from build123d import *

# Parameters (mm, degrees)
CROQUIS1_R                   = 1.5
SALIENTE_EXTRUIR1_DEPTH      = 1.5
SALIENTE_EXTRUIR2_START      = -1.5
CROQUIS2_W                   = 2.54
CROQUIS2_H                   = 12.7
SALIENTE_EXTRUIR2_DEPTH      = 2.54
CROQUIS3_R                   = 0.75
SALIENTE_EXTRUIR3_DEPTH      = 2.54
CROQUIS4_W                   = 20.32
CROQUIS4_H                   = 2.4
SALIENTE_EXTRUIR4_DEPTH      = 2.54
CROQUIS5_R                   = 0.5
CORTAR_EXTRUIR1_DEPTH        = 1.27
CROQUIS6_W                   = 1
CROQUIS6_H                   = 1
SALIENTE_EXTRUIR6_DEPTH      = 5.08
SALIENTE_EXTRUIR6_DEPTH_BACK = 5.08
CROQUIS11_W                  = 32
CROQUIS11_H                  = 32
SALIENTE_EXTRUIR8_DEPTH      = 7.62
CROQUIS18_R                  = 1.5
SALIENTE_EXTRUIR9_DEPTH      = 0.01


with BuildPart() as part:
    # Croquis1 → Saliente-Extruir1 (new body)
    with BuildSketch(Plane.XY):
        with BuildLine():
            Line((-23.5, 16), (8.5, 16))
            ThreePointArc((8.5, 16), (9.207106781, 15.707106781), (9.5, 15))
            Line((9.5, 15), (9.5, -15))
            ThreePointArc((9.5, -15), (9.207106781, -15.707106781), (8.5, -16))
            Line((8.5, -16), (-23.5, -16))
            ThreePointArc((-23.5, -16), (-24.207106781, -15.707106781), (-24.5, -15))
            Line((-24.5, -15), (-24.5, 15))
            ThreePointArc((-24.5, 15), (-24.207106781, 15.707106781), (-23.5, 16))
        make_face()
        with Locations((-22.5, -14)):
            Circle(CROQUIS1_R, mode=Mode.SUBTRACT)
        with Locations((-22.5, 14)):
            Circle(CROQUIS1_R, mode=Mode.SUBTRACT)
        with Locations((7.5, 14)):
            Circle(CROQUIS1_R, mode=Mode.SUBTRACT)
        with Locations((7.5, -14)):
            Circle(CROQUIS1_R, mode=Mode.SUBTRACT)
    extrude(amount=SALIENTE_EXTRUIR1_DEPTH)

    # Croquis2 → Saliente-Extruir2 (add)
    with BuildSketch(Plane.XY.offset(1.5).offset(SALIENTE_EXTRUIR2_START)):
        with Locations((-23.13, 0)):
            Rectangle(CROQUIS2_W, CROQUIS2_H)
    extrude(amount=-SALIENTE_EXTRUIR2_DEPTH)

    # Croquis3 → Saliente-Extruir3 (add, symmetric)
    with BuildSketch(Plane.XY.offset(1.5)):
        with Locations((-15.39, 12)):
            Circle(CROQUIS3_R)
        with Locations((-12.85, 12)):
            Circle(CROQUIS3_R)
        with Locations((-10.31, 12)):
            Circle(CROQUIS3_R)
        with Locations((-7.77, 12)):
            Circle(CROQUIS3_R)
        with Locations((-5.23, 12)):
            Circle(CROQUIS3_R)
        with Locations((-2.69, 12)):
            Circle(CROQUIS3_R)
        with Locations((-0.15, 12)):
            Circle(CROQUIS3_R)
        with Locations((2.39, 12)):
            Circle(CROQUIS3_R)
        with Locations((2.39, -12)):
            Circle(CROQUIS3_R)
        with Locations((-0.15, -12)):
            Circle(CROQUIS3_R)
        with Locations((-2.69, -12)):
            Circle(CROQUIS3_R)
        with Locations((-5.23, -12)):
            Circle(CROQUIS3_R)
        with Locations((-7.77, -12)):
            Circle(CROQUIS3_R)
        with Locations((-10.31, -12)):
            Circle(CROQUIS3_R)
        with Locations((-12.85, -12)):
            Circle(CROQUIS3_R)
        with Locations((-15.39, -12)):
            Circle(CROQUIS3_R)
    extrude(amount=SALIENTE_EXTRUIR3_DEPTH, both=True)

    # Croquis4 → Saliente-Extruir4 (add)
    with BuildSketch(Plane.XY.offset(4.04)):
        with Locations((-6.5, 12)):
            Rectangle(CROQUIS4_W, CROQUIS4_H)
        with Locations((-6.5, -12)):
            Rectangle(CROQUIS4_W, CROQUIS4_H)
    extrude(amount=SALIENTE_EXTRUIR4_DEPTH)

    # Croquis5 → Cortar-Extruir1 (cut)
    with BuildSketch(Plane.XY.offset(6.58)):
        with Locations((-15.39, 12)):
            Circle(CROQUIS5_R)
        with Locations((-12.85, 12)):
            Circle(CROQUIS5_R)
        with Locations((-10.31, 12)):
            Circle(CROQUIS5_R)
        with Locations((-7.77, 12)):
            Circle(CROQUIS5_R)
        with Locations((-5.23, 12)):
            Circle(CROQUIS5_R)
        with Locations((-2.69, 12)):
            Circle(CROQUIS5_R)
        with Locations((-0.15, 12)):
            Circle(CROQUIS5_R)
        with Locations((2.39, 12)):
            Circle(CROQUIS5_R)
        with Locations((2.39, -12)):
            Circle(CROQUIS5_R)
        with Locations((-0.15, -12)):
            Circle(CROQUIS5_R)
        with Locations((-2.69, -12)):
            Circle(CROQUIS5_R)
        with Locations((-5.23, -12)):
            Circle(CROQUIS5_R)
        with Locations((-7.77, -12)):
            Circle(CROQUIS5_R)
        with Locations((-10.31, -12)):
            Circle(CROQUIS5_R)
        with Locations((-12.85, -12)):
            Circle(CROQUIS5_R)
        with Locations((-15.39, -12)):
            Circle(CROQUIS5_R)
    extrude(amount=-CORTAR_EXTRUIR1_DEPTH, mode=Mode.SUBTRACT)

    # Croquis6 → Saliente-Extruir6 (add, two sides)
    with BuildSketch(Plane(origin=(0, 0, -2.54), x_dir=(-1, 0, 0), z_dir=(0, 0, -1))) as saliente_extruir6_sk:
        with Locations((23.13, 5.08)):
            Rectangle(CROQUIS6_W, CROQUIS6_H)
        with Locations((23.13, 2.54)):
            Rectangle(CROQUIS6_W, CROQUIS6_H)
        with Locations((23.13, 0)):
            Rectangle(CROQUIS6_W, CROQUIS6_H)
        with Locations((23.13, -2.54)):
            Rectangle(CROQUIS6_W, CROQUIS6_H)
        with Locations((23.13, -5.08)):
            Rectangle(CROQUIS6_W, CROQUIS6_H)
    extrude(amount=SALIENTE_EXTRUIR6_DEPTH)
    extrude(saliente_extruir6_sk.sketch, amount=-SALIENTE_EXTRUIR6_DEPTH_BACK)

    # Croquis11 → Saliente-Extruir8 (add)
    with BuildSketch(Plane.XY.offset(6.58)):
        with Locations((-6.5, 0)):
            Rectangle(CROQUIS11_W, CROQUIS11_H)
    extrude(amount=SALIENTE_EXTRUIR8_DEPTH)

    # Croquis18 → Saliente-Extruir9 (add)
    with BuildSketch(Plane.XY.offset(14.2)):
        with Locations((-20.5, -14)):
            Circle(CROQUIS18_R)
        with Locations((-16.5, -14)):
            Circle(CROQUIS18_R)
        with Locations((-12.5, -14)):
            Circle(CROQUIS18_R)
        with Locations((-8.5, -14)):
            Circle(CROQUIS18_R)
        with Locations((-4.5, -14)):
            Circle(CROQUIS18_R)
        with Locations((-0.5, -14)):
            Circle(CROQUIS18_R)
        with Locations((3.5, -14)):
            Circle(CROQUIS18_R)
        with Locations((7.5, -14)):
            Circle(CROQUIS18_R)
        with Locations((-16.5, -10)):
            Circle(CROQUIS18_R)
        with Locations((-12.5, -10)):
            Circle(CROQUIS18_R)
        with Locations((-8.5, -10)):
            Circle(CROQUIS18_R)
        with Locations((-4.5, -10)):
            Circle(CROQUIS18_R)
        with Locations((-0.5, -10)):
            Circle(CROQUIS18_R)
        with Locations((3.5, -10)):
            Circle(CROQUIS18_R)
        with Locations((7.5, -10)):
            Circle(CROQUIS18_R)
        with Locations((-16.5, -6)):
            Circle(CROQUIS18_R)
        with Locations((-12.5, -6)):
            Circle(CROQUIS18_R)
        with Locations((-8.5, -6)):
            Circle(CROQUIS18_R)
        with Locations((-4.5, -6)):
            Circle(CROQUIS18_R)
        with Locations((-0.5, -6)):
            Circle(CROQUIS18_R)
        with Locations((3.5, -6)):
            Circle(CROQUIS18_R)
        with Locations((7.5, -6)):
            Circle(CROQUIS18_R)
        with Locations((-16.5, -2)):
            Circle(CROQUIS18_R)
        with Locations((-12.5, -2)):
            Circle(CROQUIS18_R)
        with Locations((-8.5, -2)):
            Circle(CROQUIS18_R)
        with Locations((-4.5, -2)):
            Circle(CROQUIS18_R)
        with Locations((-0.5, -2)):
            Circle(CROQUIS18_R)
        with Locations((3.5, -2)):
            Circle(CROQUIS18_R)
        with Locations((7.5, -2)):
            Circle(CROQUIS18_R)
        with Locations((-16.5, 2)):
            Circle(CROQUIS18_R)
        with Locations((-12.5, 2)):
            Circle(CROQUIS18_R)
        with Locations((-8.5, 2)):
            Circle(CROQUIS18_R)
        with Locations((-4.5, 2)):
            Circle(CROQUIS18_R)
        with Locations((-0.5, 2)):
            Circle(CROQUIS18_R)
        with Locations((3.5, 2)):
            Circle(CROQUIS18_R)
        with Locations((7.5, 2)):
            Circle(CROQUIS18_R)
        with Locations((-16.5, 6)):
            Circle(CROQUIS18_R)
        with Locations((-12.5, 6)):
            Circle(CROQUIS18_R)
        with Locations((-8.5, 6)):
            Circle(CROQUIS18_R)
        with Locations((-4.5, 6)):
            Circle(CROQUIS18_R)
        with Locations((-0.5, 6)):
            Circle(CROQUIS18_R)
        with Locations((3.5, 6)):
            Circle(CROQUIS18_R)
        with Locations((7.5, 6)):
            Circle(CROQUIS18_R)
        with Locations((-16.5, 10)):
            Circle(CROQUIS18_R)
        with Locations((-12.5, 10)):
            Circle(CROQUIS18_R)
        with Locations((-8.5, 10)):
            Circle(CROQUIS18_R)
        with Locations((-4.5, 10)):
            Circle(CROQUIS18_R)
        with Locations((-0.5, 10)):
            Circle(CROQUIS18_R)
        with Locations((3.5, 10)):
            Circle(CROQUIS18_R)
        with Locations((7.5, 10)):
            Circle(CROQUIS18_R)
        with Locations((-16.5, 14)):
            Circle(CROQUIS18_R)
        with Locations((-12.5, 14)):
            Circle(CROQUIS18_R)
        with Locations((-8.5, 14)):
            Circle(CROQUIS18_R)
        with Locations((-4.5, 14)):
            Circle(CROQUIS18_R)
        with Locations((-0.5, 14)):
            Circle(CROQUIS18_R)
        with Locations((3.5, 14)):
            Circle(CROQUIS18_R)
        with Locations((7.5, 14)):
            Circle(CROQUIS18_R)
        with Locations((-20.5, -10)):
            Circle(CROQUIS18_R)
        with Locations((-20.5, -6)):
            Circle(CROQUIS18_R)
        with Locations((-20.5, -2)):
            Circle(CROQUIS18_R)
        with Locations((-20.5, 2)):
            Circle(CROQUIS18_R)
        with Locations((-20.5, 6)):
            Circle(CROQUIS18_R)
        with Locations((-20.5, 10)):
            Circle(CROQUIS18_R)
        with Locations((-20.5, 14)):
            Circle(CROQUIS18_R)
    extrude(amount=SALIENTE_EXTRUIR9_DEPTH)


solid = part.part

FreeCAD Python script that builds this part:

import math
import FreeCAD as App
import Part
import Sketcher

V = App.Vector
Q = App.Units.Quantity

doc = App.newDocument("Part")
body = doc.addObject("PartDesign::Body", "Body")

# Sketch on XY plane
sketch1 = body.newObject("Sketcher::SketchObject", "Sketch")
sketch1.AttachmentSupport = (doc.getObject("XY_Plane"), [""])
sketch1.MapMode = "FlatFace"
sketch1.addGeometry([
    Part.LineSegment(V(8.5, 16, 0), V(-23.5, 16, 0)),  # 0
    Part.ArcOfCircle(Part.Circle(V(-23.5, 15, 0), V(0, 0, 1), 1), math.radians(90), math.radians(180)),  # 1
    Part.LineSegment(V(-24.5, 15, 0), V(-24.5, -15, 0)),  # 2
    Part.ArcOfCircle(Part.Circle(V(-23.5, -15, 0), V(0, 0, 1), 1), math.radians(-180), math.radians(-90)),  # 3
    Part.LineSegment(V(-23.5, -16, 0), V(8.5, -16, 0)),  # 4
    Part.ArcOfCircle(Part.Circle(V(8.5, -15, 0), V(0, 0, 1), 1), math.radians(-90), math.radians(0)),  # 5
    Part.LineSegment(V(9.5, -15, 0), V(9.5, 15, 0)),  # 6
    Part.ArcOfCircle(Part.Circle(V(8.5, 15, 0), V(0, 0, 1), 1), math.radians(0), math.radians(90)),  # 7
    Part.Circle(V(7.5, -14, 0), V(0, 0, 1), 1.5),  # 8
    Part.Circle(V(-22.5, -14, 0), V(0, 0, 1), 1.5),  # 9
    Part.Circle(V(7.5, 14, 0), V(0, 0, 1), 1.5),  # 10
    Part.Circle(V(-22.5, 14, 0), V(0, 0, 1), 1.5),  # 11
], False)
sketch1.addConstraint([
    Sketcher.Constraint("Tangent", 0, 2, 1, 1),
    Sketcher.Constraint("Tangent", 1, 2, 2, 1),
    Sketcher.Constraint("Tangent", 2, 2, 3, 1),
    Sketcher.Constraint("Tangent", 3, 2, 4, 1),
    Sketcher.Constraint("Tangent", 4, 2, 5, 1),
    Sketcher.Constraint("Tangent", 5, 2, 6, 1),
    Sketcher.Constraint("Tangent", 6, 2, 7, 1),
    Sketcher.Constraint("Tangent", 7, 2, 0, 1),
    Sketcher.Constraint("Horizontal", 0),
    Sketcher.Constraint("Vertical", 2),
    Sketcher.Constraint("Horizontal", 4),
    Sketcher.Constraint("Vertical", 6),
    Sketcher.Constraint("Equal", 1, 3),
    Sketcher.Constraint("Equal", 3, 5),
    Sketcher.Constraint("Equal", 5, 7),
    Sketcher.Constraint("Equal", 8, 9),
    Sketcher.Constraint("Equal", 9, 10),
    Sketcher.Constraint("Equal", 10, 11),
    Sketcher.Constraint("Symmetric", 8, 3, 10, 3, -1),
    Sketcher.Constraint("Symmetric", 9, 3, 11, 3, -1),
    Sketcher.Constraint("Horizontal", 8, 3, 9, 3),
    Sketcher.Constraint("Diameter", 8, Q("3 mm")),
    Sketcher.Constraint("Radius", 1, Q("1 mm")),
    Sketcher.Constraint("DistanceX", 0, 2, 0, 1, Q("32 mm")),
    Sketcher.Constraint("DistanceY", 2, 2, 2, 1, Q("30 mm")),
    Sketcher.Constraint("DistanceY", -1, 1, 1, 3, Q("15 mm")),
    Sketcher.Constraint("DistanceY", 8, 3, -1, 1, Q("14 mm")),
    Sketcher.Constraint("DistanceX", 8, 3, 5, 3, Q("1 mm")),
    Sketcher.Constraint("DistanceX", 3, 3, 9, 3, Q("1 mm")),
    Sketcher.Constraint("DistanceX", 1, 3, -1, 1, Q("23.5 mm")),
])
pad1 = body.newObject("PartDesign::Pad", "Pad")
pad1.Profile = sketch1
pad1.Length = 1.5

# Sketch on XY plane
sketch2 = body.newObject("Sketcher::SketchObject", "Sketch001")
sketch2.AttachmentSupport = (doc.getObject("XY_Plane"), [""])
sketch2.MapMode = "FlatFace"
sketch2.addGeometry([
    Part.LineSegment(V(-24.4, 6.35, 0), V(-24.4, -6.35, 0)),
    Part.LineSegment(V(-24.4, -6.35, 0), V(-21.86, -6.35, 0)),
    Part.LineSegment(V(-21.86, -6.35, 0), V(-21.86, 6.35, 0)),
    Part.LineSegment(V(-21.86, 6.35, 0), V(-24.4, 6.35, 0)),
], False)
sketch2.addConstraint([
    Sketcher.Constraint("Coincident", 0, 2, 1, 1),
    Sketcher.Constraint("Coincident", 1, 2, 2, 1),
    Sketcher.Constraint("Coincident", 2, 2, 3, 1),
    Sketcher.Constraint("Coincident", 3, 2, 0, 1),
    Sketcher.Constraint("Vertical", 0),
    Sketcher.Constraint("Horizontal", 1),
    Sketcher.Constraint("Vertical", 2),
    Sketcher.Constraint("Horizontal", 3),
    Sketcher.Constraint("DistanceY", 0, 2, 0, 1, Q("12.7 mm")),
    Sketcher.Constraint("DistanceX", 1, 1, 1, 2, Q("2.54 mm")),
    Sketcher.Constraint("DistanceX", 0, 2, -1, 1, Q("24.4 mm")),
    Sketcher.Constraint("DistanceY", 0, 2, -1, 1, Q("6.35 mm")),
])
pad2 = body.newObject("PartDesign::Pad", "Pad001")
pad2.Profile = sketch2
pad2.Length = 2.54
pad2.Reversed = True

# Sketch on XY plane
sketch3 = body.newObject("Sketcher::SketchObject", "Sketch002")
sketch3.AttachmentSupport = (doc.getObject("XY_Plane"), [""])
sketch3.MapMode = "FlatFace"
sketch3.AttachmentOffset = App.Placement(V(0, 0, 1.5), App.Rotation())
sketch3.addGeometry([
    Part.Circle(V(-15.39, 12, 0), V(0, 0, 1), 0.75),  # 0
    Part.Circle(V(-12.85, 12, 0), V(0, 0, 1), 0.75),  # 1
    Part.Circle(V(-10.31, 12, 0), V(0, 0, 1), 0.75),  # 2
    Part.Circle(V(-7.77, 12, 0), V(0, 0, 1), 0.75),  # 3
    Part.Circle(V(-5.23, 12, 0), V(0, 0, 1), 0.75),  # 4
    Part.Circle(V(-2.69, 12, 0), V(0, 0, 1), 0.75),  # 5
    Part.Circle(V(-0.15, 12, 0), V(0, 0, 1), 0.75),  # 6
    Part.Circle(V(2.39, 12, 0), V(0, 0, 1), 0.75),  # 7
    Part.Circle(V(2.39, -12, 0), V(0, 0, 1), 0.75),  # 8
    Part.Circle(V(-0.15, -12, 0), V(0, 0, 1), 0.75),  # 9
    Part.Circle(V(-2.69, -12, 0), V(0, 0, 1), 0.75),  # 10
    Part.Circle(V(-5.23, -12, 0), V(0, 0, 1), 0.75),  # 11
    Part.Circle(V(-7.77, -12, 0), V(0, 0, 1), 0.75),  # 12
    Part.Circle(V(-10.31, -12, 0), V(0, 0, 1), 0.75),  # 13
    Part.Circle(V(-12.85, -12, 0), V(0, 0, 1), 0.75),  # 14
    Part.Circle(V(-15.39, -12, 0), V(0, 0, 1), 0.75),  # 15
], False)
sketch3.addConstraint([
    Sketcher.Constraint("Equal", 0, 1),
    Sketcher.Constraint("Equal", 1, 2),
    Sketcher.Constraint("Equal", 2, 3),
    Sketcher.Constraint("Equal", 3, 4),
    Sketcher.Constraint("Equal", 4, 5),
    Sketcher.Constraint("Equal", 5, 6),
    Sketcher.Constraint("Equal", 6, 7),
    Sketcher.Constraint("Equal", 7, 8),
    Sketcher.Constraint("Equal", 8, 9),
    Sketcher.Constraint("Equal", 9, 10),
    Sketcher.Constraint("Equal", 10, 11),
    Sketcher.Constraint("Equal", 11, 12),
    Sketcher.Constraint("Equal", 12, 13),
    Sketcher.Constraint("Equal", 13, 14),
    Sketcher.Constraint("Equal", 14, 15),
    Sketcher.Constraint("Symmetric", 7, 3, 8, 3, -1),
    Sketcher.Constraint("Symmetric", 6, 3, 9, 3, -1),
    Sketcher.Constraint("Symmetric", 5, 3, 10, 3, -1),
    Sketcher.Constraint("Symmetric", 4, 3, 11, 3, -1),
    Sketcher.Constraint("Symmetric", 3, 3, 12, 3, -1),
    Sketcher.Constraint("Symmetric", 2, 3, 13, 3, -1),
    Sketcher.Constraint("Symmetric", 1, 3, 14, 3, -1),
    Sketcher.Constraint("Symmetric", 0, 3, 15, 3, -1),
    Sketcher.Constraint("Horizontal", 0, 3, 1, 3),
    Sketcher.Constraint("Horizontal", 1, 3, 2, 3),
    Sketcher.Constraint("Horizontal", 2, 3, 3, 3),
    Sketcher.Constraint("Horizontal", 3, 3, 4, 3),
    Sketcher.Constraint("Horizontal", 4, 3, 5, 3),
    Sketcher.Constraint("Horizontal", 5, 3, 6, 3),
    Sketcher.Constraint("Horizontal", 6, 3, 7, 3),
    Sketcher.Constraint("Diameter", 0, Q("1.5 mm")),
    Sketcher.Constraint("DistanceY", -1, 1, 0, 3, Q("12 mm")),
    Sketcher.Constraint("DistanceX", 0, 3, 5, 3, Q("12.7 mm")),
    Sketcher.Constraint("DistanceX", 1, 3, 6, 3, Q("12.7 mm")),
    Sketcher.Constraint("DistanceX", 2, 3, 7, 3, Q("12.7 mm")),
    Sketcher.Constraint("DistanceX", 0, 3, -1, 1, Q("15.39 mm")),
    Sketcher.Constraint("DistanceX", 1, 3, -1, 1, Q("12.85 mm")),
    Sketcher.Constraint("DistanceX", 2, 3, -1, 1, Q("10.31 mm")),
    Sketcher.Constraint("DistanceX", 3, 3, -1, 1, Q("7.77 mm")),
    Sketcher.Constraint("DistanceX", 4, 3, -1, 1, Q("5.23 mm")),
])
pad3 = body.newObject("PartDesign::Pad", "Pad002")
pad3.Profile = sketch3
pad3.Length = 5.08
pad3.Midplane = True

# Sketch on XY plane
sketch4 = body.newObject("Sketcher::SketchObject", "Sketch003")
sketch4.AttachmentSupport = (doc.getObject("XY_Plane"), [""])
sketch4.MapMode = "FlatFace"
sketch4.AttachmentOffset = App.Placement(V(0, 0, 4.04), App.Rotation())
sketch4.addGeometry([
    Part.LineSegment(V(-16.66, 13.2, 0), V(-16.66, 10.8, 0)),  # 0
    Part.LineSegment(V(-16.66, 10.8, 0), V(3.66, 10.8, 0)),  # 1
    Part.LineSegment(V(3.66, 10.8, 0), V(3.66, 13.2, 0)),  # 2
    Part.LineSegment(V(3.66, 13.2, 0), V(-16.66, 13.2, 0)),  # 3
    Part.LineSegment(V(-16.66, -10.8, 0), V(-16.66, -13.2, 0)),  # 4
    Part.LineSegment(V(-16.66, -13.2, 0), V(3.66, -13.2, 0)),  # 5
    Part.LineSegment(V(3.66, -13.2, 0), V(3.66, -10.8, 0)),  # 6
    Part.LineSegment(V(3.66, -10.8, 0), V(-16.66, -10.8, 0)),  # 7
], False)
sketch4.addConstraint([
    Sketcher.Constraint("Coincident", 0, 2, 1, 1),
    Sketcher.Constraint("Coincident", 1, 2, 2, 1),
    Sketcher.Constraint("Coincident", 2, 2, 3, 1),
    Sketcher.Constraint("Coincident", 3, 2, 0, 1),
    Sketcher.Constraint("Coincident", 4, 2, 5, 1),
    Sketcher.Constraint("Coincident", 5, 2, 6, 1),
    Sketcher.Constraint("Coincident", 6, 2, 7, 1),
    Sketcher.Constraint("Coincident", 7, 2, 4, 1),
    Sketcher.Constraint("Vertical", 0),
    Sketcher.Constraint("Horizontal", 1),
    Sketcher.Constraint("Vertical", 2),
    Sketcher.Constraint("Horizontal", 3),
    Sketcher.Constraint("Vertical", 4),
    Sketcher.Constraint("Horizontal", 5),
    Sketcher.Constraint("Vertical", 6),
    Sketcher.Constraint("Horizontal", 7),
    Sketcher.Constraint("Symmetric", 3, 2, 4, 2, -1),
    Sketcher.Constraint("Symmetric", 1, 2, 6, 2, -1),
    Sketcher.Constraint("DistanceY", 0, 2, 0, 1, Q("2.4 mm")),
    Sketcher.Constraint("DistanceY", 4, 2, 0, 2, Q("24 mm")),
    Sketcher.Constraint("DistanceX", 1, 1, 1, 2, Q("20.32 mm")),
    Sketcher.Constraint("DistanceX", 0, 2, -1, 1, Q("16.66 mm")),
])
pad4 = body.newObject("PartDesign::Pad", "Pad003")
pad4.Profile = sketch4
pad4.Length = 2.54

# Sketch on XY plane
sketch5 = body.newObject("Sketcher::SketchObject", "Sketch004")
sketch5.AttachmentSupport = (doc.getObject("XY_Plane"), [""])
sketch5.MapMode = "FlatFace"
sketch5.AttachmentOffset = App.Placement(V(0, 0, 6.58), App.Rotation())
sketch5.addGeometry([
    Part.Circle(V(-15.39, 12, 0), V(0, 0, 1), 0.5),  # 0
    Part.Circle(V(-12.85, 12, 0), V(0, 0, 1), 0.5),  # 1
    Part.Circle(V(-10.31, 12, 0), V(0, 0, 1), 0.5),  # 2
    Part.Circle(V(-7.77, 12, 0), V(0, 0, 1), 0.5),  # 3
    Part.Circle(V(-5.23, 12, 0), V(0, 0, 1), 0.5),  # 4
    Part.Circle(V(-2.69, 12, 0), V(0, 0, 1), 0.5),  # 5
    Part.Circle(V(-0.15, 12, 0), V(0, 0, 1), 0.5),  # 6
    Part.Circle(V(2.39, 12, 0), V(0, 0, 1), 0.5),  # 7
    Part.Circle(V(2.39, -12, 0), V(0, 0, 1), 0.5),  # 8
    Part.Circle(V(-0.15, -12, 0), V(0, 0, 1), 0.5),  # 9
    Part.Circle(V(-2.69, -12, 0), V(0, 0, 1), 0.5),  # 10
    Part.Circle(V(-5.23, -12, 0), V(0, 0, 1), 0.5),  # 11
    Part.Circle(V(-7.77, -12, 0), V(0, 0, 1), 0.5),  # 12
    Part.Circle(V(-10.31, -12, 0), V(0, 0, 1), 0.5),  # 13
    Part.Circle(V(-12.85, -12, 0), V(0, 0, 1), 0.5),  # 14
    Part.Circle(V(-15.39, -12, 0), V(0, 0, 1), 0.5),  # 15
], False)
sketch5.addConstraint([
    Sketcher.Constraint("Equal", 0, 1),
    Sketcher.Constraint("Equal", 1, 2),
    Sketcher.Constraint("Equal", 2, 3),
    Sketcher.Constraint("Equal", 3, 4),
    Sketcher.Constraint("Equal", 4, 5),
    Sketcher.Constraint("Equal", 5, 6),
    Sketcher.Constraint("Equal", 6, 7),
    Sketcher.Constraint("Equal", 7, 8),
    Sketcher.Constraint("Equal", 8, 9),
    Sketcher.Constraint("Equal", 9, 10),
    Sketcher.Constraint("Equal", 10, 11),
    Sketcher.Constraint("Equal", 11, 12),
    Sketcher.Constraint("Equal", 12, 13),
    Sketcher.Constraint("Equal", 13, 14),
    Sketcher.Constraint("Equal", 14, 15),
    Sketcher.Constraint("Symmetric", 7, 3, 8, 3, -1),
    Sketcher.Constraint("Symmetric", 6, 3, 9, 3, -1),
    Sketcher.Constraint("Symmetric", 5, 3, 10, 3, -1),
    Sketcher.Constraint("Symmetric", 4, 3, 11, 3, -1),
    Sketcher.Constraint("Symmetric", 3, 3, 12, 3, -1),
    Sketcher.Constraint("Symmetric", 2, 3, 13, 3, -1),
    Sketcher.Constraint("Symmetric", 1, 3, 14, 3, -1),
    Sketcher.Constraint("Symmetric", 0, 3, 15, 3, -1),
    Sketcher.Constraint("Horizontal", 0, 3, 1, 3),
    Sketcher.Constraint("Horizontal", 1, 3, 2, 3),
    Sketcher.Constraint("Horizontal", 2, 3, 3, 3),
    Sketcher.Constraint("Horizontal", 3, 3, 4, 3),
    Sketcher.Constraint("Horizontal", 4, 3, 5, 3),
    Sketcher.Constraint("Horizontal", 5, 3, 6, 3),
    Sketcher.Constraint("Horizontal", 6, 3, 7, 3),
    Sketcher.Constraint("Diameter", 0, Q("1 mm")),
    Sketcher.Constraint("DistanceY", -1, 1, 0, 3, Q("12 mm")),
    Sketcher.Constraint("DistanceX", 0, 3, 5, 3, Q("12.7 mm")),
    Sketcher.Constraint("DistanceX", 1, 3, 6, 3, Q("12.7 mm")),
    Sketcher.Constraint("DistanceX", 2, 3, 7, 3, Q("12.7 mm")),
    Sketcher.Constraint("DistanceX", 0, 3, -1, 1, Q("15.39 mm")),
    Sketcher.Constraint("DistanceX", 1, 3, -1, 1, Q("12.85 mm")),
    Sketcher.Constraint("DistanceX", 2, 3, -1, 1, Q("10.31 mm")),
    Sketcher.Constraint("DistanceX", 3, 3, -1, 1, Q("7.77 mm")),
    Sketcher.Constraint("DistanceX", 4, 3, -1, 1, Q("5.23 mm")),
])
pocket1 = body.newObject("PartDesign::Pocket", "Pocket")
pocket1.Profile = sketch5
pocket1.Length = 1.27

# Sketch on XY plane
sketch6 = body.newObject("Sketcher::SketchObject", "Sketch005")
sketch6.AttachmentSupport = (doc.getObject("XY_Plane"), [""])
sketch6.MapMode = "FlatFace"
sketch6.AttachmentOffset = App.Placement(V(0, 0, -2.54), App.Rotation())
sketch6.addGeometry([
    Part.LineSegment(V(-22.63, 5.58, 0), V(-22.63, 4.58, 0)),  # 0
    Part.LineSegment(V(-22.63, 4.58, 0), V(-23.63, 4.58, 0)),  # 1
    Part.LineSegment(V(-23.63, 4.58, 0), V(-23.63, 5.58, 0)),  # 2
    Part.LineSegment(V(-23.63, 5.58, 0), V(-22.63, 5.58, 0)),  # 3
    Part.LineSegment(V(-22.63, 3.04, 0), V(-22.63, 2.04, 0)),  # 4
    Part.LineSegment(V(-22.63, 2.04, 0), V(-23.63, 2.04, 0)),  # 5
    Part.LineSegment(V(-23.63, 2.04, 0), V(-23.63, 3.04, 0)),  # 6
    Part.LineSegment(V(-23.63, 3.04, 0), V(-22.63, 3.04, 0)),  # 7
    Part.LineSegment(V(-22.63, 0.5, 0), V(-22.63, -0.5, 0)),  # 8
    Part.LineSegment(V(-22.63, -0.5, 0), V(-23.63, -0.5, 0)),  # 9
    Part.LineSegment(V(-23.63, -0.5, 0), V(-23.63, 0.5, 0)),  # 10
    Part.LineSegment(V(-23.63, 0.5, 0), V(-22.63, 0.5, 0)),  # 11
    Part.LineSegment(V(-22.63, -2.04, 0), V(-22.63, -3.04, 0)),  # 12
    Part.LineSegment(V(-22.63, -3.04, 0), V(-23.63, -3.04, 0)),  # 13
    Part.LineSegment(V(-23.63, -3.04, 0), V(-23.63, -2.04, 0)),  # 14
    Part.LineSegment(V(-23.63, -2.04, 0), V(-22.63, -2.04, 0)),  # 15
    Part.LineSegment(V(-22.63, -4.58, 0), V(-22.63, -5.58, 0)),  # 16
    Part.LineSegment(V(-22.63, -5.58, 0), V(-23.63, -5.58, 0)),  # 17
    Part.LineSegment(V(-23.63, -5.58, 0), V(-23.63, -4.58, 0)),  # 18
    Part.LineSegment(V(-23.63, -4.58, 0), V(-22.63, -4.58, 0)),  # 19
], False)
sketch6.addConstraint([
    Sketcher.Constraint("Coincident", 0, 2, 1, 1),
    Sketcher.Constraint("Coincident", 1, 2, 2, 1),
    Sketcher.Constraint("Coincident", 2, 2, 3, 1),
    Sketcher.Constraint("Coincident", 3, 2, 0, 1),
    Sketcher.Constraint("Coincident", 4, 2, 5, 1),
    Sketcher.Constraint("Coincident", 5, 2, 6, 1),
    Sketcher.Constraint("Coincident", 6, 2, 7, 1),
    Sketcher.Constraint("Coincident", 7, 2, 4, 1),
    Sketcher.Constraint("Coincident", 8, 2, 9, 1),
    Sketcher.Constraint("Coincident", 9, 2, 10, 1),
    Sketcher.Constraint("Coincident", 10, 2, 11, 1),
    Sketcher.Constraint("Coincident", 11, 2, 8, 1),
    Sketcher.Constraint("Coincident", 12, 2, 13, 1),
    Sketcher.Constraint("Coincident", 13, 2, 14, 1),
    Sketcher.Constraint("Coincident", 14, 2, 15, 1),
    Sketcher.Constraint("Coincident", 15, 2, 12, 1),
    Sketcher.Constraint("Coincident", 16, 2, 17, 1),
    Sketcher.Constraint("Coincident", 17, 2, 18, 1),
    Sketcher.Constraint("Coincident", 18, 2, 19, 1),
    Sketcher.Constraint("Coincident", 19, 2, 16, 1),
    Sketcher.Constraint("Vertical", 0),
    Sketcher.Constraint("Horizontal", 1),
    Sketcher.Constraint("Vertical", 2),
    Sketcher.Constraint("Horizontal", 3),
    Sketcher.Constraint("Vertical", 4),
    Sketcher.Constraint("Horizontal", 5),
    Sketcher.Constraint("Vertical", 6),
    Sketcher.Constraint("Horizontal", 7),
    Sketcher.Constraint("Vertical", 8),
    Sketcher.Constraint("Horizontal", 9),
    Sketcher.Constraint("Vertical", 10),
    Sketcher.Constraint("Horizontal", 11),
    Sketcher.Constraint("Vertical", 12),
    Sketcher.Constraint("Horizontal", 13),
    Sketcher.Constraint("Vertical", 14),
    Sketcher.Constraint("Horizontal", 15),
    Sketcher.Constraint("Vertical", 16),
    Sketcher.Constraint("Horizontal", 17),
    Sketcher.Constraint("Vertical", 18),
    Sketcher.Constraint("Horizontal", 19),
    Sketcher.Constraint("Symmetric", 7, 2, 12, 2, -1),
    Sketcher.Constraint("Symmetric", 5, 2, 14, 2, -1),
    Sketcher.Constraint("Symmetric", 3, 2, 16, 2, -1),
    Sketcher.Constraint("Symmetric", 1, 2, 18, 2, -1),
    Sketcher.Constraint("Vertical", 3, 2, 4, 2),
    Sketcher.Constraint("Vertical", 2, 2, 5, 2),
    Sketcher.Constraint("Vertical", 7, 2, 8, 2),
    Sketcher.Constraint("Vertical", 6, 2, 9, 2),
    Sketcher.Constraint("Equal", 19, 0),
    Sketcher.Constraint("Equal", 2, 4),
    Sketcher.Constraint("Equal", 6, 8),
    Sketcher.Constraint("DistanceX", 1, 2, 1, 1, Q("1 mm")),
    Sketcher.Constraint("DistanceY", 8, 2, -1, 1, Q("0.5 mm")),
    Sketcher.Constraint("DistanceX", 0, 2, -1, 1, Q("22.63 mm")),
    Sketcher.Constraint("DistanceY", -1, 1, 0, 2, Q("4.58 mm")),
    Sketcher.Constraint("DistanceY", -1, 1, 4, 2, Q("2.04 mm")),
])
pad5 = body.newObject("PartDesign::Pad", "Pad004")
pad5.Profile = sketch6
pad5.Type = "TwoLengths"
pad5.Length = 5.08
pad5.Length2 = 5.08
pad5.Reversed = True

# Sketch on XY plane
sketch7 = body.newObject("Sketcher::SketchObject", "Sketch006")
sketch7.AttachmentSupport = (doc.getObject("XY_Plane"), [""])
sketch7.MapMode = "FlatFace"
sketch7.AttachmentOffset = App.Placement(V(0, 0, 6.58), App.Rotation())
sketch7.addGeometry([
    Part.LineSegment(V(-22.5, 16, 0), V(-22.5, -16, 0)),
    Part.LineSegment(V(-22.5, -16, 0), V(9.5, -16, 0)),
    Part.LineSegment(V(9.5, -16, 0), V(9.5, 16, 0)),
    Part.LineSegment(V(9.5, 16, 0), V(-22.5, 16, 0)),
], False)
sketch7.addConstraint([
    Sketcher.Constraint("Coincident", 0, 2, 1, 1),
    Sketcher.Constraint("Coincident", 1, 2, 2, 1),
    Sketcher.Constraint("Coincident", 2, 2, 3, 1),
    Sketcher.Constraint("Coincident", 3, 2, 0, 1),
    Sketcher.Constraint("Vertical", 0),
    Sketcher.Constraint("Horizontal", 1),
    Sketcher.Constraint("Vertical", 2),
    Sketcher.Constraint("Horizontal", 3),
    Sketcher.Constraint("Equal", 3, 0),
    Sketcher.Constraint("DistanceX", 1, 1, 1, 2, Q("32 mm")),
    Sketcher.Constraint("DistanceY", 0, 2, -1, 1, Q("16 mm")),
    Sketcher.Constraint("DistanceX", 0, 2, -1, 1, Q("22.5 mm")),
])
pad6 = body.newObject("PartDesign::Pad", "Pad005")
pad6.Profile = sketch7
pad6.Length = 7.62

# Sketch on XY plane
sketch8 = body.newObject("Sketcher::SketchObject", "Sketch007")
sketch8.AttachmentSupport = (doc.getObject("XY_Plane"), [""])
sketch8.MapMode = "FlatFace"
sketch8.AttachmentOffset = App.Placement(V(0, 0, 14.2), App.Rotation())
sketch8.addGeometry([
    Part.Circle(V(-20.5, -14, 0), V(0, 0, 1), 1.5),  # 0
    Part.Circle(V(-16.5, -14, 0), V(0, 0, 1), 1.5),  # 1
    Part.Circle(V(-12.5, -14, 0), V(0, 0, 1), 1.5),  # 2
    Part.Circle(V(-8.5, -14, 0), V(0, 0, 1), 1.5),  # 3
    Part.Circle(V(-4.5, -14, 0), V(0, 0, 1), 1.5),  # 4
    Part.Circle(V(-0.5, -14, 0), V(0, 0, 1), 1.5),  # 5
    Part.Circle(V(3.5, -14, 0), V(0, 0, 1), 1.5),  # 6
    Part.Circle(V(7.5, -14, 0), V(0, 0, 1), 1.5),  # 7
    Part.Circle(V(-16.5, -10, 0), V(0, 0, 1), 1.5),  # 8
    Part.Circle(V(-12.5, -10, 0), V(0, 0, 1), 1.5),  # 9
    Part.Circle(V(-8.5, -10, 0), V(0, 0, 1), 1.5),  # 10
    Part.Circle(V(-4.5, -10, 0), V(0, 0, 1), 1.5),  # 11
    Part.Circle(V(-0.5, -10, 0), V(0, 0, 1), 1.5),  # 12
    Part.Circle(V(3.5, -10, 0), V(0, 0, 1), 1.5),  # 13
    Part.Circle(V(7.5, -10, 0), V(0, 0, 1), 1.5),  # 14
    Part.Circle(V(-16.5, -6, 0), V(0, 0, 1), 1.5),  # 15
    Part.Circle(V(-12.5, -6, 0), V(0, 0, 1), 1.5),  # 16
    Part.Circle(V(-8.5, -6, 0), V(0, 0, 1), 1.5),  # 17
    Part.Circle(V(-4.5, -6, 0), V(0, 0, 1), 1.5),  # 18
    Part.Circle(V(-0.5, -6, 0), V(0, 0, 1), 1.5),  # 19
    Part.Circle(V(3.5, -6, 0), V(0, 0, 1), 1.5),  # 20
    Part.Circle(V(7.5, -6, 0), V(0, 0, 1), 1.5),  # 21
    Part.Circle(V(-16.5, -2, 0), V(0, 0, 1), 1.5),  # 22
    Part.Circle(V(-12.5, -2, 0), V(0, 0, 1), 1.5),  # 23
    Part.Circle(V(-8.5, -2, 0), V(0, 0, 1), 1.5),  # 24
    Part.Circle(V(-4.5, -2, 0), V(0, 0, 1), 1.5),  # 25
    Part.Circle(V(-0.5, -2, 0), V(0, 0, 1), 1.5),  # 26
    Part.Circle(V(3.5, -2, 0), V(0, 0, 1), 1.5),  # 27
    Part.Circle(V(7.5, -2, 0), V(0, 0, 1), 1.5),  # 28
    Part.Circle(V(-16.5, 2, 0), V(0, 0, 1), 1.5),  # 29
    Part.Circle(V(-12.5, 2, 0), V(0, 0, 1), 1.5),  # 30
    Part.Circle(V(-8.5, 2, 0), V(0, 0, 1), 1.5),  # 31
    Part.Circle(V(-4.5, 2, 0), V(0, 0, 1), 1.5),  # 32
    Part.Circle(V(-0.5, 2, 0), V(0, 0, 1), 1.5),  # 33
    Part.Circle(V(3.5, 2, 0), V(0, 0, 1), 1.5),  # 34
    Part.Circle(V(7.5, 2, 0), V(0, 0, 1), 1.5),  # 35
    Part.Circle(V(-16.5, 6, 0), V(0, 0, 1), 1.5),  # 36
    Part.Circle(V(-12.5, 6, 0), V(0, 0, 1), 1.5),  # 37
    Part.Circle(V(-8.5, 6, 0), V(0, 0, 1), 1.5),  # 38
    Part.Circle(V(-4.5, 6, 0), V(0, 0, 1), 1.5),  # 39
    Part.Circle(V(-0.5, 6, 0), V(0, 0, 1), 1.5),  # 40
    Part.Circle(V(3.5, 6, 0), V(0, 0, 1), 1.5),  # 41
    Part.Circle(V(7.5, 6, 0), V(0, 0, 1), 1.5),  # 42
    Part.Circle(V(-16.5, 10, 0), V(0, 0, 1), 1.5),  # 43
    Part.Circle(V(-12.5, 10, 0), V(0, 0, 1), 1.5),  # 44
    Part.Circle(V(-8.5, 10, 0), V(0, 0, 1), 1.5),  # 45
    Part.Circle(V(-4.5, 10, 0), V(0, 0, 1), 1.5),  # 46
    Part.Circle(V(-0.5, 10, 0), V(0, 0, 1), 1.5),  # 47
    Part.Circle(V(3.5, 10, 0), V(0, 0, 1), 1.5),  # 48
    Part.Circle(V(7.5, 10, 0), V(0, 0, 1), 1.5),  # 49
    Part.Circle(V(-16.5, 14, 0), V(0, 0, 1), 1.5),  # 50
    Part.Circle(V(-12.5, 14, 0), V(0, 0, 1), 1.5),  # 51
    Part.Circle(V(-8.5, 14, 0), V(0, 0, 1), 1.5),  # 52
    Part.Circle(V(-4.5, 14, 0), V(0, 0, 1), 1.5),  # 53
    Part.Circle(V(-0.5, 14, 0), V(0, 0, 1), 1.5),  # 54
    Part.Circle(V(3.5, 14, 0), V(0, 0, 1), 1.5),  # 55
    Part.Circle(V(7.5, 14, 0), V(0, 0, 1), 1.5),  # 56
    Part.Circle(V(-20.5, -10, 0), V(0, 0, 1), 1.5),  # 57
    Part.Circle(V(-20.5, -6, 0), V(0, 0, 1), 1.5),  # 58
    Part.Circle(V(-20.5, -2, 0), V(0, 0, 1), 1.5),  # 59
    Part.Circle(V(-20.5, 2, 0), V(0, 0, 1), 1.5),  # 60
    Part.Circle(V(-20.5, 6, 0), V(0, 0, 1), 1.5),  # 61
    Part.Circle(V(-20.5, 10, 0), V(0, 0, 1), 1.5),  # 62
    Part.Circle(V(-20.5, 14, 0), V(0, 0, 1), 1.5),  # 63
], False)
sketch8.addConstraint([
    Sketcher.Constraint("Equal", 0, 1),
    Sketcher.Constraint("Equal", 1, 2),
    Sketcher.Constraint("Equal", 2, 3),
    Sketcher.Constraint("Equal", 3, 4),
    Sketcher.Constraint("Equal", 4, 5),
    Sketcher.Constraint("Equal", 5, 6),
    Sketcher.Constraint("Equal", 6, 7),
    Sketcher.Constraint("Equal", 7, 8),
    Sketcher.Constraint("Equal", 8, 9),
    Sketcher.Constraint("Equal", 9, 10),
    Sketcher.Constraint("Equal", 10, 11),
    Sketcher.Constraint("Equal", 11, 12),
    Sketcher.Constraint("Equal", 12, 13),
    Sketcher.Constraint("Equal", 13, 14),
    Sketcher.Constraint("Equal", 14, 15),
    Sketcher.Constraint("Equal", 15, 16),
    Sketcher.Constraint("Equal", 16, 17),
    Sketcher.Constraint("Equal", 17, 18),
    Sketcher.Constraint("Equal", 18, 19),
    Sketcher.Constraint("Equal", 19, 20),
    Sketcher.Constraint("Equal", 20, 21),
    Sketcher.Constraint("Equal", 21, 22),
    Sketcher.Constraint("Equal", 22, 23),
    Sketcher.Constraint("Equal", 23, 24),
    Sketcher.Constraint("Equal", 24, 25),
    Sketcher.Constraint("Equal", 25, 26),
    Sketcher.Constraint("Equal", 26, 27),
    Sketcher.Constraint("Equal", 27, 28),
    Sketcher.Constraint("Equal", 28, 29),
    Sketcher.Constraint("Equal", 29, 30),
    Sketcher.Constraint("Equal", 30, 31),
    Sketcher.Constraint("Equal", 31, 32),
    Sketcher.Constraint("Equal", 32, 33),
    Sketcher.Constraint("Equal", 33, 34),
    Sketcher.Constraint("Equal", 34, 35),
    Sketcher.Constraint("Equal", 35, 36),
    Sketcher.Constraint("Equal", 36, 37),
    Sketcher.Constraint("Equal", 37, 38),
    Sketcher.Constraint("Equal", 38, 39),
    Sketcher.Constraint("Equal", 39, 40),
    Sketcher.Constraint("Equal", 40, 41),
    Sketcher.Constraint("Equal", 41, 42),
    Sketcher.Constraint("Equal", 42, 43),
    Sketcher.Constraint("Equal", 43, 44),
    Sketcher.Constraint("Equal", 44, 45),
    Sketcher.Constraint("Equal", 45, 46),
    Sketcher.Constraint("Equal", 46, 47),
    Sketcher.Constraint("Equal", 47, 48),
    Sketcher.Constraint("Equal", 48, 49),
    Sketcher.Constraint("Equal", 49, 50),
    Sketcher.Constraint("Equal", 50, 51),
    Sketcher.Constraint("Equal", 51, 52),
    Sketcher.Constraint("Equal", 52, 53),
    Sketcher.Constraint("Equal", 53, 54),
    Sketcher.Constraint("Equal", 54, 55),
    Sketcher.Constraint("Equal", 55, 56),
    Sketcher.Constraint("Equal", 56, 57),
    Sketcher.Constraint("Equal", 57, 58),
    Sketcher.Constraint("Equal", 58, 59),
    Sketcher.Constraint("Equal", 59, 60),
    Sketcher.Constraint("Equal", 60, 61),
    Sketcher.Constraint("Equal", 61, 62),
    Sketcher.Constraint("Equal", 62, 63),
    Sketcher.Constraint("Symmetric", 22, 3, 29, 3, -1),
    Sketcher.Constraint("Symmetric", 23, 3, 30, 3, -1),
    Sketcher.Constraint("Symmetric", 24, 3, 31, 3, -1),
    Sketcher.Constraint("Symmetric", 25, 3, 32, 3, -1),
    Sketcher.Constraint("Symmetric", 26, 3, 33, 3, -1),
    Sketcher.Constraint("Symmetric", 27, 3, 34, 3, -1),
    Sketcher.Constraint("Symmetric", 28, 3, 35, 3, -1),
    Sketcher.Constraint("Symmetric", 15, 3, 36, 3, -1),
    Sketcher.Constraint("Symmetric", 16, 3, 37, 3, -1),
    Sketcher.Constraint("Symmetric", 17, 3, 38, 3, -1),
    Sketcher.Constraint("Symmetric", 18, 3, 39, 3, -1),
    Sketcher.Constraint("Symmetric", 19, 3, 40, 3, -1),
    Sketcher.Constraint("Symmetric", 20, 3, 41, 3, -1),
    Sketcher.Constraint("Symmetric", 21, 3, 42, 3, -1),
    Sketcher.Constraint("Symmetric", 8, 3, 43, 3, -1),
    Sketcher.Constraint("Symmetric", 9, 3, 44, 3, -1),
    Sketcher.Constraint("Symmetric", 10, 3, 45, 3, -1),
    Sketcher.Constraint("Symmetric", 11, 3, 46, 3, -1),
    Sketcher.Constraint("Symmetric", 12, 3, 47, 3, -1),
    Sketcher.Constraint("Symmetric", 13, 3, 48, 3, -1),
    Sketcher.Constraint("Symmetric", 14, 3, 49, 3, -1),
    Sketcher.Constraint("Symmetric", 1, 3, 50, 3, -1),
    Sketcher.Constraint("Symmetric", 2, 3, 51, 3, -1),
    Sketcher.Constraint("Symmetric", 3, 3, 52, 3, -1),
    Sketcher.Constraint("Symmetric", 4, 3, 53, 3, -1),
    Sketcher.Constraint("Symmetric", 5, 3, 54, 3, -1),
    Sketcher.Constraint("Symmetric", 6, 3, 55, 3, -1),
    Sketcher.Constraint("Symmetric", 7, 3, 56, 3, -1),
    Sketcher.Constraint("Symmetric", 59, 3, 60, 3, -1),
    Sketcher.Constraint("Symmetric", 58, 3, 61, 3, -1),
    Sketcher.Constraint("Symmetric", 57, 3, 62, 3, -1),
    Sketcher.Constraint("Symmetric", 0, 3, 63, 3, -1),
    Sketcher.Constraint("Horizontal", 0, 3, 1, 3),
    Sketcher.Constraint("Horizontal", 1, 3, 2, 3),
    Sketcher.Constraint("Horizontal", 2, 3, 3, 3),
    Sketcher.Constraint("Horizontal", 3, 3, 4, 3),
    Sketcher.Constraint("Horizontal", 4, 3, 5, 3),
    Sketcher.Constraint("Horizontal", 5, 3, 6, 3),
    Sketcher.Constraint("Horizontal", 6, 3, 7, 3),
    Sketcher.Constraint("Horizontal", 8, 3, 9, 3),
    Sketcher.Constraint("Horizontal", 9, 3, 10, 3),
    Sketcher.Constraint("Horizontal", 10, 3, 11, 3),
    Sketcher.Constraint("Horizontal", 11, 3, 12, 3),
    Sketcher.Constraint("Horizontal", 12, 3, 13, 3),
    Sketcher.Constraint("Horizontal", 13, 3, 14, 3),
    Sketcher.Constraint("Horizontal", 15, 3, 16, 3),
    Sketcher.Constraint("Horizontal", 16, 3, 17, 3),
    Sketcher.Constraint("Horizontal", 17, 3, 18, 3),
    Sketcher.Constraint("Horizontal", 18, 3, 19, 3),
    Sketcher.Constraint("Horizontal", 19, 3, 20, 3),
    Sketcher.Constraint("Horizontal", 20, 3, 21, 3),
    Sketcher.Constraint("Horizontal", 22, 3, 23, 3),
    Sketcher.Constraint("Horizontal", 23, 3, 24, 3),
    Sketcher.Constraint("Horizontal", 24, 3, 25, 3),
    Sketcher.Constraint("Horizontal", 25, 3, 26, 3),
    Sketcher.Constraint("Horizontal", 26, 3, 27, 3),
    Sketcher.Constraint("Horizontal", 27, 3, 28, 3),
    Sketcher.Constraint("Horizontal", 14, 3, 57, 3),
    Sketcher.Constraint("Horizontal", 21, 3, 58, 3),
    Sketcher.Constraint("Horizontal", 28, 3, 59, 3),
    Sketcher.Constraint("Vertical", 1, 3, 8, 3),
    Sketcher.Constraint("Vertical", 2, 3, 9, 3),
    Sketcher.Constraint("Vertical", 3, 3, 10, 3),
    Sketcher.Constraint("Vertical", 4, 3, 11, 3),
    Sketcher.Constraint("Vertical", 5, 3, 12, 3),
    Sketcher.Constraint("Vertical", 6, 3, 13, 3),
    Sketcher.Constraint("Vertical", 7, 3, 14, 3),
    Sketcher.Constraint("Vertical", 8, 3, 15, 3),
    Sketcher.Constraint("Vertical", 9, 3, 16, 3),
    Sketcher.Constraint("Vertical", 10, 3, 17, 3),
    Sketcher.Constraint("Vertical", 11, 3, 18, 3),
    Sketcher.Constraint("Vertical", 12, 3, 19, 3),
    Sketcher.Constraint("Vertical", 13, 3, 20, 3),
    Sketcher.Constraint("Vertical", 14, 3, 21, 3),
    Sketcher.Constraint("Vertical", 15, 3, 22, 3),
    Sketcher.Constraint("Vertical", 16, 3, 23, 3),
    Sketcher.Constraint("Vertical", 17, 3, 24, 3),
    Sketcher.Constraint("Vertical", 18, 3, 25, 3),
    Sketcher.Constraint("Vertical", 19, 3, 26, 3),
    Sketcher.Constraint("Vertical", 20, 3, 27, 3),
    Sketcher.Constraint("Vertical", 21, 3, 28, 3),
    Sketcher.Constraint("Vertical", 0, 3, 57, 3),
    Sketcher.Constraint("Vertical", 57, 3, 58, 3),
    Sketcher.Constraint("Vertical", 58, 3, 59, 3),
    Sketcher.Constraint("Diameter", 0, Q("3 mm")),
    Sketcher.Constraint("DistanceY", 0, 3, -1, 1, Q("14 mm")),
    Sketcher.Constraint("DistanceY", 8, 3, -1, 1, Q("10 mm")),
    Sketcher.Constraint("DistanceY", 15, 3, -1, 1, Q("6 mm")),
    Sketcher.Constraint("DistanceY", 22, 3, -1, 1, Q("2 mm")),
    Sketcher.Constraint("DistanceX", 0, 3, -1, 1, Q("20.5 mm")),
    Sketcher.Constraint("DistanceX", 1, 3, -1, 1, Q("16.5 mm")),
    Sketcher.Constraint("DistanceX", 2, 3, -1, 1, Q("12.5 mm")),
    Sketcher.Constraint("DistanceX", 3, 3, -1, 1, Q("8.5 mm")),
    Sketcher.Constraint("DistanceX", 4, 3, -1, 1, Q("4.5 mm")),
    Sketcher.Constraint("DistanceX", 5, 3, -1, 1, Q("0.5 mm")),
    Sketcher.Constraint("DistanceX", -1, 1, 6, 3, Q("3.5 mm")),
    Sketcher.Constraint("DistanceX", -1, 1, 7, 3, Q("7.5 mm")),
])
pad7 = body.newObject("PartDesign::Pad", "Pad006")
pad7.Profile = sketch8
pad7.Length = 0.01

doc.recompute()
